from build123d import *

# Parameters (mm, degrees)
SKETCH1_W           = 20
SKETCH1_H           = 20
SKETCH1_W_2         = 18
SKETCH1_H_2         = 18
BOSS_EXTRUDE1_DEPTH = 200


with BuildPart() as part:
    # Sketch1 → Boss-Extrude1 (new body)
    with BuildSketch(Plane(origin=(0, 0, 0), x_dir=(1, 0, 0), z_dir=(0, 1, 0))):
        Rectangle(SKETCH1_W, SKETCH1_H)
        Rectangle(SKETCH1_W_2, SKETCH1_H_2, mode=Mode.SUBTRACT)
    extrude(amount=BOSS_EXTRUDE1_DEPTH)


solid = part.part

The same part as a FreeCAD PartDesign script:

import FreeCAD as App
import Part
import Sketcher
Q = App.Units.Quantity

doc = App.newDocument("Part")
body = doc.addObject("PartDesign::Body", "Body")

sketch1 = body.newObject("Sketcher::SketchObject", "Sketch")
sketch1.AttachmentSupport = (doc.getObject("XZ_Plane"), [""])
sketch1.MapMode = "FlatFace"
sketch1.addGeometry([
    Part.LineSegment(App.Vector(-10, -10, 0), App.Vector(-10, 10, 0)),
    Part.LineSegment(App.Vector(-10, 10, 0), App.Vector(10, 10, 0)),
    Part.LineSegment(App.Vector(10, 10, 0), App.Vector(10, -10, 0)),
    Part.LineSegment(App.Vector(10, -10, 0), App.Vector(-10, -10, 0)),
    Part.LineSegment(App.Vector(9, 9, 0), App.Vector(-9, 9, 0)),
    Part.LineSegment(App.Vector(-9, 9, 0), App.Vector(-9, -9, 0)),
    Part.LineSegment(App.Vector(-9, -9, 0), App.Vector(9, -9, 0)),
    Part.LineSegment(App.Vector(9, -9, 0), App.Vector(9, 9, 0)),
], False)
sketch1.addConstraint([
    Sketcher.Constraint("Coincident", 0, 2, 1, 1),
    Sketcher.Constraint("Coincident", 1, 2, 2, 1),
    Sketcher.Constraint("Coincident", 2, 2, 3, 1),
    Sketcher.Constraint("Coincident", 3, 2, 0, 1),
    Sketcher.Constraint("Coincident", 4, 2, 5, 1),
    Sketcher.Constraint("Coincident", 5, 2, 6, 1),
    Sketcher.Constraint("Coincident", 6, 2, 7, 1),
    Sketcher.Constraint("Coincident", 7, 2, 4, 1),
    Sketcher.Constraint("Vertical", 0),
    Sketcher.Constraint("Horizontal", 1),
    Sketcher.Constraint("Vertical", 2),
    Sketcher.Constraint("Horizontal", 3),
    Sketcher.Constraint("Horizontal", 4),
    Sketcher.Constraint("Vertical", 5),
    Sketcher.Constraint("Horizontal", 6),
    Sketcher.Constraint("Vertical", 7),
    Sketcher.Constraint("Symmetric", 0, 2, 2, 2, -1, 1),
    Sketcher.Constraint("Symmetric", 4, 2, 6, 2, -1, 1),
    Sketcher.Constraint("Equal", 3, 0),
    Sketcher.Constraint("Equal", 6, 5),
    Sketcher.Constraint("DistanceX", 1, 1, 1, 2, Q("20 mm")),
    Sketcher.Constraint("DistanceX", 4, 2, 4, 1, Q("18 mm")),
])
pad1 = body.newObject("PartDesign::Pad", "Pad")
pad1.Profile = sketch1
pad1.Length = 200
pad1.Reversed = True

doc.recompute()
